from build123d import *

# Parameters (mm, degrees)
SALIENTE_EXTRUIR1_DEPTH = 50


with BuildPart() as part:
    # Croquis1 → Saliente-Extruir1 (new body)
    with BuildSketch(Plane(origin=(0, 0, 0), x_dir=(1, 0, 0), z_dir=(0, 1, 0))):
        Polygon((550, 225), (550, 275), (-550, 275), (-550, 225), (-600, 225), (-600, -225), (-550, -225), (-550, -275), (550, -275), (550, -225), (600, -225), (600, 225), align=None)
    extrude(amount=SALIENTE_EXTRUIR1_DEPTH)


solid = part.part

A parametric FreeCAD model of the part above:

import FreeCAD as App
import Part
import Sketcher


def add_polygon(sketch, points):
    """Adds a closed chain of lines whose ends are joined by coincident constraints."""
    first, n = sketch.GeometryCount, len(points)
    for a, b in zip(points, points[1:] + points[:1]):
        sketch.addGeometry(Part.LineSegment(App.Vector(*a, 0), App.Vector(*b, 0)), False)
    for i in range(n):
        sketch.addConstraint(Sketcher.Constraint("Coincident", first + i, 2, first + (i + 1) % n, 1))

doc = App.newDocument("Part")
body = doc.addObject("PartDesign::Body", "Body")

# Sketch on XZ plane
sketch1 = doc.addObject("Sketcher::SketchObject", "Sketch")
body.addObject(sketch1)
sketch1.AttachmentSupport = (doc.XZ_Plane, [""])
sketch1.MapMode = "FlatFace"
add_polygon(sketch1, [(550, -225), (550, -275), (-550, -275), (-550, -225), (-600, -225), (-600, 225), (-550, 225), (-550, 275), (550, 275), (550, 225), (600, 225), (600, -225)])  # lines 0-11
sketch1.addConstraint([
    Sketcher.Constraint("Vertical", 0),
    Sketcher.Constraint("Horizontal", 1),
    Sketcher.Constraint("Vertical", 2),
    Sketcher.Constraint("Horizontal", 3),
    Sketcher.Constraint("Vertical", 4),
    Sketcher.Constraint("Horizontal", 5),
    Sketcher.Constraint("Vertical", 6),
    Sketcher.Constraint("Horizontal", 7),
    Sketcher.Constraint("Vertical", 8),
    Sketcher.Constraint("Horizontal", 9),
    Sketcher.Constraint("Vertical", 10),
    Sketcher.Constraint("Horizontal", 11),
    Sketcher.Constraint("Symmetric", 0, 2, 6, 2, -1, 1),
    Sketcher.Constraint("Symmetric", 2, 2, 8, 2, -1, 1),
    Sketcher.Constraint("Symmetric", 4, 2, 10, 2, -1, 1),
    Sketcher.Constraint("Symmetric", 5, 2, 8, 2, -2),
    Sketcher.Constraint("Equal", 11, 0),
    Sketcher.Constraint("DistanceX", 1, 2, 1, 1, 1100.0),
    Sketcher.Constraint("DistanceX", 3, 2, 3, 1, 50.0),
    Sketcher.Constraint("DistanceY", 4, 1, 4, 2, 450.0),
])
pad1 = doc.addObject("PartDesign::Pad", "Pad")
body.addObject(pad1)
pad1.Profile = sketch1
pad1.Length = 50
pad1.Reversed = True

doc.recompute()
